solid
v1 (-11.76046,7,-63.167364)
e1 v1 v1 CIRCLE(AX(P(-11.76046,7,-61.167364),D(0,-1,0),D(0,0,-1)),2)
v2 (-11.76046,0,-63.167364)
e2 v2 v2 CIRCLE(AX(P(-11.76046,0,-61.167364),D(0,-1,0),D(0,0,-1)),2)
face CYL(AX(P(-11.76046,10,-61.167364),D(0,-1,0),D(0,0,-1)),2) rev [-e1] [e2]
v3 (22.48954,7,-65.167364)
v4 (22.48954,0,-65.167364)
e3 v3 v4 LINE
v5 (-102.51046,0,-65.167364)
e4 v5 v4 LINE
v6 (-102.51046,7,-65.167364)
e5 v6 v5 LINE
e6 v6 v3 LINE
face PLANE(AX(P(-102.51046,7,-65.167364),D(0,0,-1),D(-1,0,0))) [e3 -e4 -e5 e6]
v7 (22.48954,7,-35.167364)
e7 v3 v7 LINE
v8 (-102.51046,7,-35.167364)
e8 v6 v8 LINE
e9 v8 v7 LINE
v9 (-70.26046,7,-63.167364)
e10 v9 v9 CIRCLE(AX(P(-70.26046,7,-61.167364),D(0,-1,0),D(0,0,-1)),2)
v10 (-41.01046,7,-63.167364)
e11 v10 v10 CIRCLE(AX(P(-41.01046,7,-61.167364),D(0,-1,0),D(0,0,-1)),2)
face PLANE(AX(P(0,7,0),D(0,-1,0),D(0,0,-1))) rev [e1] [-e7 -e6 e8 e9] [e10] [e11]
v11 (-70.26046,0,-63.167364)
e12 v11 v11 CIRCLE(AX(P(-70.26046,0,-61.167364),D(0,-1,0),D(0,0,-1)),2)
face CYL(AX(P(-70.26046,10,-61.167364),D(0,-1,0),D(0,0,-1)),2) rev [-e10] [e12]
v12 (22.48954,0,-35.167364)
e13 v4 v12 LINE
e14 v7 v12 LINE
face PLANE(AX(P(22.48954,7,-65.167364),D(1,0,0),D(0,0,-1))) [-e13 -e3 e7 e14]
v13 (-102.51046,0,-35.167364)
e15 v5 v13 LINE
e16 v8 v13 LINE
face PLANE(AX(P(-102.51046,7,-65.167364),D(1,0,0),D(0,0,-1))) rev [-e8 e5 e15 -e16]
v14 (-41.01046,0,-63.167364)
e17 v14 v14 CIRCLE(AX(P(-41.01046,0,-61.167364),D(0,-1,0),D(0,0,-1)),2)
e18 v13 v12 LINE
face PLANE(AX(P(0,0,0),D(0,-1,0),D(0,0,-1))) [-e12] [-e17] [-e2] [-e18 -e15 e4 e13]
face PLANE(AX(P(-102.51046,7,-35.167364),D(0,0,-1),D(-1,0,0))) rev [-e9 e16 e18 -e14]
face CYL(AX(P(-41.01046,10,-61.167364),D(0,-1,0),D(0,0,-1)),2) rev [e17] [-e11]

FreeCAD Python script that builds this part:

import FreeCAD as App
import Part
import Sketcher


def add_polygon(sketch, points):
    """Adds a closed chain of lines whose ends are joined by coincident constraints."""
    first, n = sketch.GeometryCount, len(points)
    for a, b in zip(points, points[1:] + points[:1]):
        sketch.addGeometry(Part.LineSegment(App.Vector(*a, 0), App.Vector(*b, 0)), False)
    for i in range(n):
        sketch.addConstraint(Sketcher.Constraint("Coincident", first + i, 2, first + (i + 1) % n, 1))

doc = App.newDocument("Part")
body = doc.addObject("PartDesign::Body", "Body")

# Sketch on XZ plane
sketch1 = body.newObject("Sketcher::SketchObject", "Sketch")
sketch1.AttachmentSupport = (doc.getObject("XZ_Plane"), [""])
sketch1.MapMode = "FlatFace"
add_polygon(sketch1, [(-102.51046, -65.167364), (-102.51046, -35.167364), (22.48954, -35.167364), (22.48954, -65.167364)])  # lines 0-3
sketch1.addConstraint([
    Sketcher.Constraint("Vertical", 0),
    Sketcher.Constraint("Horizontal", 1),
    Sketcher.Constraint("Vertical", 2),
    Sketcher.Constraint("Horizontal", 3),
    Sketcher.Constraint("DistanceX", 1, 1, 1, 2, 125.0),
    Sketcher.Constraint("DistanceY", 0, 1, 0, 2, 30.0),
    Sketcher.Constraint("DistanceX", 0, 2, -1, 1, 102.51046),
    Sketcher.Constraint("DistanceY", 0, 2, -1, 1, 35.167364),
])
pad1 = body.newObject("PartDesign::Pad", "Pad")
pad1.Profile = sketch1
pad1.Length = 7
pad1.Reversed = True

# Sketch on XZ plane
sketch2 = body.newObject("Sketcher::SketchObject", "Sketch001")
sketch2.AttachmentSupport = (doc.getObject("XZ_Plane"), [""])
sketch2.MapMode = "FlatFace"
sketch2.addGeometry([
    Part.Circle(App.Vector(-70.26046, -61.167364, 0), App.Vector(0, 0, 1), 2),
    Part.Circle(App.Vector(-41.01046, -61.167364, 0), App.Vector(0, 0, 1), 2),
    Part.Circle(App.Vector(-11.76046, -61.167364, 0), App.Vector(0, 0, 1), 2),
], False)
sketch2.addConstraint([
    Sketcher.Constraint("Equal", 0, 1),
    Sketcher.Constraint("Equal", 1, 2),
    Sketcher.Constraint("Horizontal", 0, 3, 1, 3),
    Sketcher.Constraint("Horizontal", 1, 3, 2, 3),
    Sketcher.Constraint("Diameter", 0, 4.0),
    Sketcher.Constraint("DistanceX", 0, 3, 2, 3, 58.5),
    Sketcher.Constraint("DistanceX", 0, 3, 1, 3, 29.25),
    Sketcher.Constraint("DistanceX", 0, 3, -1, 1, 70.26046),
    Sketcher.Constraint("DistanceY", 0, 3, -1, 1, 61.167364),
])
pocket1 = body.newObject("PartDesign::Pocket", "Pocket")
pocket1.Profile = sketch2
pocket1.Length = 10

doc.recompute()
